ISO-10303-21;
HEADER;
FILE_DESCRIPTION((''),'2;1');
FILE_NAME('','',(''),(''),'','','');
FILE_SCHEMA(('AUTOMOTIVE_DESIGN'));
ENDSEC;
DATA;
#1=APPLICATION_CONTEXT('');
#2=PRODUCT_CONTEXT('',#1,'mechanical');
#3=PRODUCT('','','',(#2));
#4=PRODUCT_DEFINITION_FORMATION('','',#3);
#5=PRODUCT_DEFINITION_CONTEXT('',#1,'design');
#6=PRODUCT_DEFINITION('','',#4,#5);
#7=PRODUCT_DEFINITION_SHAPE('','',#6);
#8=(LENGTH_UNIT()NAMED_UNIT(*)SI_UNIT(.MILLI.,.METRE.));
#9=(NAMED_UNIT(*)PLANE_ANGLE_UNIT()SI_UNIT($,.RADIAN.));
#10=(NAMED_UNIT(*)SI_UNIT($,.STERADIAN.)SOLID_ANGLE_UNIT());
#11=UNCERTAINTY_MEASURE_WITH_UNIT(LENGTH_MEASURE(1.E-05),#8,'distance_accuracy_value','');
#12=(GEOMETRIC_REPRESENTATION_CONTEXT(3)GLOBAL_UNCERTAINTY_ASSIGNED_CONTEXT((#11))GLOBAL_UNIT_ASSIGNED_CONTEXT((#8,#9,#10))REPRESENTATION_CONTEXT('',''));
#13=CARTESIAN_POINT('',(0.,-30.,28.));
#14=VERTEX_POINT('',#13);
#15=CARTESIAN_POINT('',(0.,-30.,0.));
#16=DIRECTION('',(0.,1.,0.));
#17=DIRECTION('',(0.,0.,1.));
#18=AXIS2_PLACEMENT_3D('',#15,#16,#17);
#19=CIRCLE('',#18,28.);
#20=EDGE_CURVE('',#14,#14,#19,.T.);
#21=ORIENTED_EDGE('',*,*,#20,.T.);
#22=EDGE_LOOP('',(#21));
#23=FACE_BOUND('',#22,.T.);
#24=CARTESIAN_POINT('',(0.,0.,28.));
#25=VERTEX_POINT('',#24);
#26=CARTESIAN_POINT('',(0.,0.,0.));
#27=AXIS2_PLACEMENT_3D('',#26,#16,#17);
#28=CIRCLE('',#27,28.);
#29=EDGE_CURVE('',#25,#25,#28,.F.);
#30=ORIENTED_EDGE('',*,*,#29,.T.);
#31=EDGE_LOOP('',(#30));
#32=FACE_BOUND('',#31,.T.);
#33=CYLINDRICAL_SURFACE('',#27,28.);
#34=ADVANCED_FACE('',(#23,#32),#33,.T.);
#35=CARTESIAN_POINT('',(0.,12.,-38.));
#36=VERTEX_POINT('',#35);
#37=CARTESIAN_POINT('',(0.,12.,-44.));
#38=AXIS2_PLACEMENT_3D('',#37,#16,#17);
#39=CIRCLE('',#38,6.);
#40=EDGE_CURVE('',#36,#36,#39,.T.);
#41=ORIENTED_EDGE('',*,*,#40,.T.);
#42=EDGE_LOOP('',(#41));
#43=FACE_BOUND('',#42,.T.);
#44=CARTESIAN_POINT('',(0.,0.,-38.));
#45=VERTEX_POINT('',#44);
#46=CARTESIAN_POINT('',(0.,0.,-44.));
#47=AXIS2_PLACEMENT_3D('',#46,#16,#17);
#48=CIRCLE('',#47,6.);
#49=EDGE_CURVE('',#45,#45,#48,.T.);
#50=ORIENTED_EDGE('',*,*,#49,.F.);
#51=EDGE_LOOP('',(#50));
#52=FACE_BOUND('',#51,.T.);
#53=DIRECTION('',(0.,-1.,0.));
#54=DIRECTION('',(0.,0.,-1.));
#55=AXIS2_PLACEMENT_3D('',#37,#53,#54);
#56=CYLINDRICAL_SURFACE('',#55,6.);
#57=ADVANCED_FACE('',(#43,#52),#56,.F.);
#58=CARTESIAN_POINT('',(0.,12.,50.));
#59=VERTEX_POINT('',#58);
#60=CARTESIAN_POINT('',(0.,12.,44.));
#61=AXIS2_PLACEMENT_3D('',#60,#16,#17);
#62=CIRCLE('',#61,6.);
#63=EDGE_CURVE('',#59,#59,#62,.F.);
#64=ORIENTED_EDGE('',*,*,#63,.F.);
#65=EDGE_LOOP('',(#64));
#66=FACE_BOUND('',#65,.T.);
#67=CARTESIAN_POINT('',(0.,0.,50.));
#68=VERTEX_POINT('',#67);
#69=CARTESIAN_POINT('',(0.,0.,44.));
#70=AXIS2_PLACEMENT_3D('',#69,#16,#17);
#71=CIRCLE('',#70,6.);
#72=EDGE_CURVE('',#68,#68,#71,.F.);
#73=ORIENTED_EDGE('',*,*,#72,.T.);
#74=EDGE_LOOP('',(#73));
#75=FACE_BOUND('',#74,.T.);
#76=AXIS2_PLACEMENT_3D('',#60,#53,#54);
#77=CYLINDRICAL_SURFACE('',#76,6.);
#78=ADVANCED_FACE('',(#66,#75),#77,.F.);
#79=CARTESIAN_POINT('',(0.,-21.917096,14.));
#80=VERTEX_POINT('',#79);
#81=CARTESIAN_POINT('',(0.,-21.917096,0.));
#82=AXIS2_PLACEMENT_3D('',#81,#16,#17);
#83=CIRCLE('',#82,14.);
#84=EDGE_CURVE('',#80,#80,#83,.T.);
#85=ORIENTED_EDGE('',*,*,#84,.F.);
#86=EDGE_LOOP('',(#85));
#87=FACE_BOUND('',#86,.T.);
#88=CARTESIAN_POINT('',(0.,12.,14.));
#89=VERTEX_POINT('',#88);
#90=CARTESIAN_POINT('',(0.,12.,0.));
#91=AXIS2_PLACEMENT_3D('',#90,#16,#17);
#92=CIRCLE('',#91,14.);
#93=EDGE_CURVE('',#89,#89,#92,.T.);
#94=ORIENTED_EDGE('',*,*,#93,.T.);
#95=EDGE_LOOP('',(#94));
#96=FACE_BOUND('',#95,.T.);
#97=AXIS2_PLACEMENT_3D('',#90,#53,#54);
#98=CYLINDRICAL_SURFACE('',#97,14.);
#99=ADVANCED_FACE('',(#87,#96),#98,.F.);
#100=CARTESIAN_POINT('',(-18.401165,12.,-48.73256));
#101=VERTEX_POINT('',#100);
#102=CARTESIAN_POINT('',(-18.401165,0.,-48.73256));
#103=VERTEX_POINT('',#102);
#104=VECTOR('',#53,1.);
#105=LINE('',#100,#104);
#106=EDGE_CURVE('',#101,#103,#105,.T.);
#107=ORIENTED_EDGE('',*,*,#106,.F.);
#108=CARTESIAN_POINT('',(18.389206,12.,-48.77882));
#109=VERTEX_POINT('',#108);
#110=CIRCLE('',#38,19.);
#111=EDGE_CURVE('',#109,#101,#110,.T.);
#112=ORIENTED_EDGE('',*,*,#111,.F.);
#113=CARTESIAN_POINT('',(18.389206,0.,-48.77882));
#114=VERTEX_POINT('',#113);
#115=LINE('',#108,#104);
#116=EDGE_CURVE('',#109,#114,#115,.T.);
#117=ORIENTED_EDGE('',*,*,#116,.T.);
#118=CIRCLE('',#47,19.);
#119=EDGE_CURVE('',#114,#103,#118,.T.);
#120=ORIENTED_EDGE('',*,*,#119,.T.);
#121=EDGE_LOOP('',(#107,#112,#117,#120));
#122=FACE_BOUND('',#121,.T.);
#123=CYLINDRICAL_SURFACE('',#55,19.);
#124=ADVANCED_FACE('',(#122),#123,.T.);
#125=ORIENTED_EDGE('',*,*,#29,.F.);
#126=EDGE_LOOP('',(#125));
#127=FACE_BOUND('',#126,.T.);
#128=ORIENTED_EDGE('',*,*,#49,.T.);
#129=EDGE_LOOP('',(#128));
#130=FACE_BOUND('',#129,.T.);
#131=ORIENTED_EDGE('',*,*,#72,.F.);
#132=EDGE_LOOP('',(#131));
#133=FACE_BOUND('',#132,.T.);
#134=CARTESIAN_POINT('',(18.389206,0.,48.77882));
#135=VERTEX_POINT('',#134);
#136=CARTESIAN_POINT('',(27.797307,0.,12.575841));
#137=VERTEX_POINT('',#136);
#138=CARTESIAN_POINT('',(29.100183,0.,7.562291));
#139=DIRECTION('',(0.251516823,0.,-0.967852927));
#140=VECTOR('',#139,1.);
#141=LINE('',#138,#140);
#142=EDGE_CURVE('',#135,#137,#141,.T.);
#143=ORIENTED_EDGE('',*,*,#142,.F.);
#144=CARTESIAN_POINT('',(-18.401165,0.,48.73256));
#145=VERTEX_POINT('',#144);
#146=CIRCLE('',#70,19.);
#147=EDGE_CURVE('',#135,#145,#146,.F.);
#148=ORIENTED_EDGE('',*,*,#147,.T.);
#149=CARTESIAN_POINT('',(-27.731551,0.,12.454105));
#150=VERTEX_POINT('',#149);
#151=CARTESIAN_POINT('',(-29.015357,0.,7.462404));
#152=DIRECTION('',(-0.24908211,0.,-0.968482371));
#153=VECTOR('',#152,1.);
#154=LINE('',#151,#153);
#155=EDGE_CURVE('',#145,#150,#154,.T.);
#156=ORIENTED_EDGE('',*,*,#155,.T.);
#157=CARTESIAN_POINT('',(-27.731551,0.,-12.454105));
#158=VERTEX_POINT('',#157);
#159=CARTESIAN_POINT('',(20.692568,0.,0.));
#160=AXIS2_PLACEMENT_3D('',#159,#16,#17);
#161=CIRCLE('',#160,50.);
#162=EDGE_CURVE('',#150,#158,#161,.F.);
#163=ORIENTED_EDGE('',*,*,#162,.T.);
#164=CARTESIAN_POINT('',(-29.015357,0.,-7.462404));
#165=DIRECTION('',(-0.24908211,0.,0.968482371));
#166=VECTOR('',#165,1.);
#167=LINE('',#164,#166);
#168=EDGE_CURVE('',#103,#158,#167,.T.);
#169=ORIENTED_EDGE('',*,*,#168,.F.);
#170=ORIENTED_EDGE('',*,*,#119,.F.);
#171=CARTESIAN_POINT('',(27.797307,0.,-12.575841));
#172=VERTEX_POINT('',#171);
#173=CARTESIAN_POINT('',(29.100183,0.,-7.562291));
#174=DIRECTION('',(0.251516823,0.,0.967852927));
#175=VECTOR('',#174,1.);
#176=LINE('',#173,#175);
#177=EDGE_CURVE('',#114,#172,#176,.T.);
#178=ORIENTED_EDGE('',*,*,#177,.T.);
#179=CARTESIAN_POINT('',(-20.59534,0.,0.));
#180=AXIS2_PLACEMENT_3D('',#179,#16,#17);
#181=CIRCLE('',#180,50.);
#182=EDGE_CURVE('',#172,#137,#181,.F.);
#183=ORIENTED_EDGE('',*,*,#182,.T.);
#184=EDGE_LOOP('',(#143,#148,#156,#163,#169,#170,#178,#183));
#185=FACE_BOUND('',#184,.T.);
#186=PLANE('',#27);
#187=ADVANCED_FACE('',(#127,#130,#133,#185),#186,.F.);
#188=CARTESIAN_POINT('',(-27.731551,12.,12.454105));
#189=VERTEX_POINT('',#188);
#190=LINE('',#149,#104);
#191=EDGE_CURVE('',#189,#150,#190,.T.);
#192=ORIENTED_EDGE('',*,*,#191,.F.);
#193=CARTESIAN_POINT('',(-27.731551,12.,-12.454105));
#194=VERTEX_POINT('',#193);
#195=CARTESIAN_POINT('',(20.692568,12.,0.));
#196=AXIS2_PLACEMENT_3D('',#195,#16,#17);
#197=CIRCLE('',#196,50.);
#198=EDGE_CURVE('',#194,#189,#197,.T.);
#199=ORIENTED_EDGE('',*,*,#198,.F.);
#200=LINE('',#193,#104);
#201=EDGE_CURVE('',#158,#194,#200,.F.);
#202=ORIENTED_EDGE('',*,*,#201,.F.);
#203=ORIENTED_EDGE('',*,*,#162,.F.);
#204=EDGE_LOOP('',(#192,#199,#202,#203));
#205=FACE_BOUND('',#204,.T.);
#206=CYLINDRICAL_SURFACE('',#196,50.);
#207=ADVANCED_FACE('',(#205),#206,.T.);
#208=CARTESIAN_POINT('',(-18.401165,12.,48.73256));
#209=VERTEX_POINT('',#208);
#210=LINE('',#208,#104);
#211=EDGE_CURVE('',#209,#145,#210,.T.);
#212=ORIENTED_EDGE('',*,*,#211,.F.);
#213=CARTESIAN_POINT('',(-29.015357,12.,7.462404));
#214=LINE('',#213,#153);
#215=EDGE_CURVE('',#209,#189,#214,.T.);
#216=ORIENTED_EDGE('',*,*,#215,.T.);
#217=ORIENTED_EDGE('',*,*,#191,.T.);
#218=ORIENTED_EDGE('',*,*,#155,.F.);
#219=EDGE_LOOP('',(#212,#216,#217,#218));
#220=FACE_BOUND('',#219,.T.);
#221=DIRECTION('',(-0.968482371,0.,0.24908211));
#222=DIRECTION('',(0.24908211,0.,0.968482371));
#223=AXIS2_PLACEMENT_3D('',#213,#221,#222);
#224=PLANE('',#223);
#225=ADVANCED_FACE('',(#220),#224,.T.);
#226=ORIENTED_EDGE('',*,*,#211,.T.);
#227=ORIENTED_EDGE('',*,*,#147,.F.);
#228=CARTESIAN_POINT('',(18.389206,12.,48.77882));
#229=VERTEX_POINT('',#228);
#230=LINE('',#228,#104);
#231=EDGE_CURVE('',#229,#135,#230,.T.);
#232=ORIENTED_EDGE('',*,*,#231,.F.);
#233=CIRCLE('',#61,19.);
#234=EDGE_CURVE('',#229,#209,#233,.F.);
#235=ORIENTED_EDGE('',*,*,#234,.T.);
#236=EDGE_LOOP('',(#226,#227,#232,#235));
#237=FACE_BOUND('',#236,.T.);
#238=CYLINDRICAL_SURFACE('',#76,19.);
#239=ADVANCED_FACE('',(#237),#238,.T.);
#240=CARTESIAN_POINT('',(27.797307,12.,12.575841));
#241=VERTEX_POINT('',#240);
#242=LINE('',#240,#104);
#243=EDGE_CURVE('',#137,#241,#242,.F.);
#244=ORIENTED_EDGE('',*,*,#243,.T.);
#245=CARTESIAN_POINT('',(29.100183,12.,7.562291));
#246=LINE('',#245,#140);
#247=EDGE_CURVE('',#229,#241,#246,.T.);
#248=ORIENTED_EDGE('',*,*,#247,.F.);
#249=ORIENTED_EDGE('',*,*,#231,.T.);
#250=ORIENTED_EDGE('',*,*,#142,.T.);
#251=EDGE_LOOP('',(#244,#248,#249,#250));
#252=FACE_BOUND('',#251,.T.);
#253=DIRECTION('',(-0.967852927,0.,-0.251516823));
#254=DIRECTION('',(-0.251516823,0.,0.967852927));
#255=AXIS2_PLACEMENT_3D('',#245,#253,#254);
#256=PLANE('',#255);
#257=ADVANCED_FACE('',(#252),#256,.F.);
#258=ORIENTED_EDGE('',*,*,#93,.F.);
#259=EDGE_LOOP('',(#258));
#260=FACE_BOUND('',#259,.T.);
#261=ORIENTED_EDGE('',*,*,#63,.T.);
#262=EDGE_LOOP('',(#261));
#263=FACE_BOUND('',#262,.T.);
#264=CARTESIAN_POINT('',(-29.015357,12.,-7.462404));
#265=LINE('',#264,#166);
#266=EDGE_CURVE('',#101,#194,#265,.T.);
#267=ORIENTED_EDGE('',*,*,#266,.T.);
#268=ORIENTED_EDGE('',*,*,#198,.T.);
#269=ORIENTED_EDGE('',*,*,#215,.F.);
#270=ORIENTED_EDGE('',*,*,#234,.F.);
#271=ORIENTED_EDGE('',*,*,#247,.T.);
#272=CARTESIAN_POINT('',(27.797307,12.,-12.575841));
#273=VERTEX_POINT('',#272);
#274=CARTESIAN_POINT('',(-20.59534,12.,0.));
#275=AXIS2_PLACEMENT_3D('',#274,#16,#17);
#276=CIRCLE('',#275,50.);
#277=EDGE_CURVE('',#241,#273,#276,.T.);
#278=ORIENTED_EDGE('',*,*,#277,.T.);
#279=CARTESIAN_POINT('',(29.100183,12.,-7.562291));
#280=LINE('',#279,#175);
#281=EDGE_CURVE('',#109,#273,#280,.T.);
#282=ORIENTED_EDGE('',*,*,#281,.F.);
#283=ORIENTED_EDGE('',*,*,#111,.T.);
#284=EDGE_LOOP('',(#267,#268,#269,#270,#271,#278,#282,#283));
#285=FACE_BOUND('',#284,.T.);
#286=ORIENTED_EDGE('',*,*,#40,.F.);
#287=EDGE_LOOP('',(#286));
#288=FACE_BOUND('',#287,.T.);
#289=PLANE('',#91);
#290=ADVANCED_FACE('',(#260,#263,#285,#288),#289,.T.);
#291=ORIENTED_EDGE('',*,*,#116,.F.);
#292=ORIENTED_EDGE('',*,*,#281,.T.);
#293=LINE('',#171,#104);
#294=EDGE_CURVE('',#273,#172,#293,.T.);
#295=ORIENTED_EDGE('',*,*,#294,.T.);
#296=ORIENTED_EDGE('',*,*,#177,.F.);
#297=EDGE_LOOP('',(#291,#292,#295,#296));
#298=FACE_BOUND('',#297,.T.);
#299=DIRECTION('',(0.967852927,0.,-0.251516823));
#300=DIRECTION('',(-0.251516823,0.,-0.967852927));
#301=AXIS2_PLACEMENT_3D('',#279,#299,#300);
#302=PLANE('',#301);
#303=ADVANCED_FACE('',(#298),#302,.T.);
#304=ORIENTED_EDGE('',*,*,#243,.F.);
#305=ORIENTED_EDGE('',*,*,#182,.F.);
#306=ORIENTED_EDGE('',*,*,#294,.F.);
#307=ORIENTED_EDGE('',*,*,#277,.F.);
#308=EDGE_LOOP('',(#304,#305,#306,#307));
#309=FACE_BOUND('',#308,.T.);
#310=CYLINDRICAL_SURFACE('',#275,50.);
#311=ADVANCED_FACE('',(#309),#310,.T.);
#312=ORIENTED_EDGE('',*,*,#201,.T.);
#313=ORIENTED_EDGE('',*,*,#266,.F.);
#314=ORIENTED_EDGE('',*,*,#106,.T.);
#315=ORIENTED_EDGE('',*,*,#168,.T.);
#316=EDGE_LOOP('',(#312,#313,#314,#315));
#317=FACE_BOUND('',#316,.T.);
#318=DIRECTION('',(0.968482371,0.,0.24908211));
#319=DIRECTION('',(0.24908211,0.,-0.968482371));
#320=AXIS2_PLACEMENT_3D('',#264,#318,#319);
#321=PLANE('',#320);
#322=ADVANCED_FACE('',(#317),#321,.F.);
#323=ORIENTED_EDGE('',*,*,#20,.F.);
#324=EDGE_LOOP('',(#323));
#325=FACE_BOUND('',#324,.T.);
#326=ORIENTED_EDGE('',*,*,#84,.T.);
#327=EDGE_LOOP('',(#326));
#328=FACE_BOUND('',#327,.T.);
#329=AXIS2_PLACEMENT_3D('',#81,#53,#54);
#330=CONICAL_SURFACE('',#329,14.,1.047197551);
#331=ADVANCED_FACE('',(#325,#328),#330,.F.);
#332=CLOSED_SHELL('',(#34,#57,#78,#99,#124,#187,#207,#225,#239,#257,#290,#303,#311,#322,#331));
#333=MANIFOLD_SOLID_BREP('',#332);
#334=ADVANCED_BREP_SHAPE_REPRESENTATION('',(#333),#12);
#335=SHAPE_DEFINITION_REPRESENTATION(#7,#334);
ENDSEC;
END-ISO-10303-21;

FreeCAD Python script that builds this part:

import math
import FreeCAD as App
import Part
import Sketcher

V = App.Vector
Q = App.Units.Quantity


def edges_at(feature, points):
    """Names of the edges that pass closest to the given points."""
    edges = feature.Shape.Edges
    near = lambda p: min(range(len(edges)), key=lambda i: edges[i].distToShape(Part.Vertex(*p))[0])
    return sorted({f"Edge{near(p) + 1}" for p in points})


def add_polygon(sketch, points):
    """Adds a closed chain of lines whose ends are joined by coincident constraints."""
    first, n = sketch.GeometryCount, len(points)
    for a, b in zip(points, points[1:] + points[:1]):
        sketch.addGeometry(Part.LineSegment(App.Vector(*a, 0), App.Vector(*b, 0)), False)
    for i in range(n):
        sketch.addConstraint(Sketcher.Constraint("Coincident", first + i, 2, first + (i + 1) % n, 1))

doc = App.newDocument("Part")
body = doc.addObject("PartDesign::Body", "Body")

# Sketch on XZ plane
sketch1 = body.newObject("Sketcher::SketchObject", "Sketch")
sketch1.AttachmentSupport = (doc.getObject("XZ_Plane"), [""])
sketch1.MapMode = "FlatFace"
sketch1.addGeometry([
    Part.LineSegment(V(31.065402, 0, 0), V(18.389206, -48.77882, 0)),  # 0
    Part.ArcOfCircle(Part.Circle(V(0, -44, 0), V(0, 0, 1), 19), math.radians(-165.576797), math.radians(-14.567288)),  # 1
    Part.LineSegment(V(-18.401165, -48.73256, 0), V(-30.934598, 0, 0)),  # 2
    Part.LineSegment(V(-30.934598, 0, 0), V(-18.401165, 48.73256, 0)),  # 3
    Part.ArcOfCircle(Part.Circle(V(0, 44, 0), V(0, 0, 1), 19), math.radians(14.567288), math.radians(165.576797)),  # 4
    Part.LineSegment(V(18.389206, 48.77882, 0), V(31.065402, 0, 0)),  # 5
    Part.Circle(V(0, 44, 0), V(0, 0, 1), 6),  # 6
    Part.Circle(V(0, 0, 0), V(0, 0, 1), 14),  # 7
    Part.Circle(V(0, -44, 0), V(0, 0, 1), 6),  # 8
], False)
sketch1.addConstraint([
    Sketcher.Constraint("Tangent", 0, 2, 1, 2),
    Sketcher.Constraint("Tangent", 1, 1, 2, 1),
    Sketcher.Constraint("Coincident", 2, 2, 3, 1),
    Sketcher.Constraint("Tangent", 3, 2, 4, 2),
    Sketcher.Constraint("Tangent", 4, 1, 5, 1),
    Sketcher.Constraint("Coincident", 5, 2, 0, 1),
    Sketcher.Constraint("Coincident", 7, 3, -1, 1),
    Sketcher.Constraint("Coincident", 6, 3, 4, 3),
    Sketcher.Constraint("Coincident", 8, 3, 1, 3),
    Sketcher.Constraint("Equal", 1, 4),
    Sketcher.Constraint("Equal", 6, 8),
    Sketcher.Constraint("Symmetric", 1, 3, 4, 3, -1, 1),
    Sketcher.Constraint("Symmetric", 1, 1, 3, 2, -1),
    Sketcher.Constraint("PointOnObject", 5, 2, -1),
    Sketcher.Constraint("Diameter", 6, Q("12 mm")),
    Sketcher.Constraint("Diameter", 7, Q("28 mm")),
    Sketcher.Constraint("Radius", 1, Q("19 mm")),
    Sketcher.Constraint("DistanceY", 1, 3, -1, 1, Q("44 mm")),
    Sketcher.Constraint("Distance", 0, Q("50.399 mm")),
    Sketcher.Constraint("DistanceX", 2, 2, -1, 1, Q("30.934598 mm")),
])
pad1 = body.newObject("PartDesign::Pad", "Pad")
pad1.Profile = sketch1
pad1.Length = 12
pad1.Reversed = True
doc.recompute()

fillet = body.newObject("PartDesign::Fillet", "Fillet")
fillet.Base = (pad1, edges_at(pad1, [(-30.935, 6, 0), (31.065, 6, 0)]))
fillet.Radius = 50

# Sketch on XY plane
sketch2 = body.newObject("Sketcher::SketchObject", "Sketch001")
sketch2.AttachmentSupport = (doc.getObject("XY_Plane"), [""])
sketch2.MapMode = "FlatFace"
add_polygon(sketch2, [(28, 0), (14, 0), (14, -21.917096), (28, -30)])  # lines 0-3
sketch2.addConstraint([
    Sketcher.Constraint("Horizontal", 0),
    Sketcher.Constraint("Vertical", 1),
    Sketcher.Constraint("Vertical", 3),
    Sketcher.Constraint("PointOnObject", 0, 2, -1),
    Sketcher.Constraint("DistanceX", 0, 2, 0, 1, Q("14 mm")),
    Sketcher.Constraint("DistanceY", 3, 1, 3, 2, Q("30 mm")),
    Sketcher.Constraint("Angle", 2, Q("-30 deg")),
    Sketcher.Constraint("DistanceX", -1, 1, 0, 2, Q("14 mm")),
])
revolution = body.newObject("PartDesign::Revolution", "Revolution")
revolution.Profile = sketch2
revolution.ReferenceAxis = (sketch2, ["V_Axis"])
revolution.Angle = 360

doc.recompute()
